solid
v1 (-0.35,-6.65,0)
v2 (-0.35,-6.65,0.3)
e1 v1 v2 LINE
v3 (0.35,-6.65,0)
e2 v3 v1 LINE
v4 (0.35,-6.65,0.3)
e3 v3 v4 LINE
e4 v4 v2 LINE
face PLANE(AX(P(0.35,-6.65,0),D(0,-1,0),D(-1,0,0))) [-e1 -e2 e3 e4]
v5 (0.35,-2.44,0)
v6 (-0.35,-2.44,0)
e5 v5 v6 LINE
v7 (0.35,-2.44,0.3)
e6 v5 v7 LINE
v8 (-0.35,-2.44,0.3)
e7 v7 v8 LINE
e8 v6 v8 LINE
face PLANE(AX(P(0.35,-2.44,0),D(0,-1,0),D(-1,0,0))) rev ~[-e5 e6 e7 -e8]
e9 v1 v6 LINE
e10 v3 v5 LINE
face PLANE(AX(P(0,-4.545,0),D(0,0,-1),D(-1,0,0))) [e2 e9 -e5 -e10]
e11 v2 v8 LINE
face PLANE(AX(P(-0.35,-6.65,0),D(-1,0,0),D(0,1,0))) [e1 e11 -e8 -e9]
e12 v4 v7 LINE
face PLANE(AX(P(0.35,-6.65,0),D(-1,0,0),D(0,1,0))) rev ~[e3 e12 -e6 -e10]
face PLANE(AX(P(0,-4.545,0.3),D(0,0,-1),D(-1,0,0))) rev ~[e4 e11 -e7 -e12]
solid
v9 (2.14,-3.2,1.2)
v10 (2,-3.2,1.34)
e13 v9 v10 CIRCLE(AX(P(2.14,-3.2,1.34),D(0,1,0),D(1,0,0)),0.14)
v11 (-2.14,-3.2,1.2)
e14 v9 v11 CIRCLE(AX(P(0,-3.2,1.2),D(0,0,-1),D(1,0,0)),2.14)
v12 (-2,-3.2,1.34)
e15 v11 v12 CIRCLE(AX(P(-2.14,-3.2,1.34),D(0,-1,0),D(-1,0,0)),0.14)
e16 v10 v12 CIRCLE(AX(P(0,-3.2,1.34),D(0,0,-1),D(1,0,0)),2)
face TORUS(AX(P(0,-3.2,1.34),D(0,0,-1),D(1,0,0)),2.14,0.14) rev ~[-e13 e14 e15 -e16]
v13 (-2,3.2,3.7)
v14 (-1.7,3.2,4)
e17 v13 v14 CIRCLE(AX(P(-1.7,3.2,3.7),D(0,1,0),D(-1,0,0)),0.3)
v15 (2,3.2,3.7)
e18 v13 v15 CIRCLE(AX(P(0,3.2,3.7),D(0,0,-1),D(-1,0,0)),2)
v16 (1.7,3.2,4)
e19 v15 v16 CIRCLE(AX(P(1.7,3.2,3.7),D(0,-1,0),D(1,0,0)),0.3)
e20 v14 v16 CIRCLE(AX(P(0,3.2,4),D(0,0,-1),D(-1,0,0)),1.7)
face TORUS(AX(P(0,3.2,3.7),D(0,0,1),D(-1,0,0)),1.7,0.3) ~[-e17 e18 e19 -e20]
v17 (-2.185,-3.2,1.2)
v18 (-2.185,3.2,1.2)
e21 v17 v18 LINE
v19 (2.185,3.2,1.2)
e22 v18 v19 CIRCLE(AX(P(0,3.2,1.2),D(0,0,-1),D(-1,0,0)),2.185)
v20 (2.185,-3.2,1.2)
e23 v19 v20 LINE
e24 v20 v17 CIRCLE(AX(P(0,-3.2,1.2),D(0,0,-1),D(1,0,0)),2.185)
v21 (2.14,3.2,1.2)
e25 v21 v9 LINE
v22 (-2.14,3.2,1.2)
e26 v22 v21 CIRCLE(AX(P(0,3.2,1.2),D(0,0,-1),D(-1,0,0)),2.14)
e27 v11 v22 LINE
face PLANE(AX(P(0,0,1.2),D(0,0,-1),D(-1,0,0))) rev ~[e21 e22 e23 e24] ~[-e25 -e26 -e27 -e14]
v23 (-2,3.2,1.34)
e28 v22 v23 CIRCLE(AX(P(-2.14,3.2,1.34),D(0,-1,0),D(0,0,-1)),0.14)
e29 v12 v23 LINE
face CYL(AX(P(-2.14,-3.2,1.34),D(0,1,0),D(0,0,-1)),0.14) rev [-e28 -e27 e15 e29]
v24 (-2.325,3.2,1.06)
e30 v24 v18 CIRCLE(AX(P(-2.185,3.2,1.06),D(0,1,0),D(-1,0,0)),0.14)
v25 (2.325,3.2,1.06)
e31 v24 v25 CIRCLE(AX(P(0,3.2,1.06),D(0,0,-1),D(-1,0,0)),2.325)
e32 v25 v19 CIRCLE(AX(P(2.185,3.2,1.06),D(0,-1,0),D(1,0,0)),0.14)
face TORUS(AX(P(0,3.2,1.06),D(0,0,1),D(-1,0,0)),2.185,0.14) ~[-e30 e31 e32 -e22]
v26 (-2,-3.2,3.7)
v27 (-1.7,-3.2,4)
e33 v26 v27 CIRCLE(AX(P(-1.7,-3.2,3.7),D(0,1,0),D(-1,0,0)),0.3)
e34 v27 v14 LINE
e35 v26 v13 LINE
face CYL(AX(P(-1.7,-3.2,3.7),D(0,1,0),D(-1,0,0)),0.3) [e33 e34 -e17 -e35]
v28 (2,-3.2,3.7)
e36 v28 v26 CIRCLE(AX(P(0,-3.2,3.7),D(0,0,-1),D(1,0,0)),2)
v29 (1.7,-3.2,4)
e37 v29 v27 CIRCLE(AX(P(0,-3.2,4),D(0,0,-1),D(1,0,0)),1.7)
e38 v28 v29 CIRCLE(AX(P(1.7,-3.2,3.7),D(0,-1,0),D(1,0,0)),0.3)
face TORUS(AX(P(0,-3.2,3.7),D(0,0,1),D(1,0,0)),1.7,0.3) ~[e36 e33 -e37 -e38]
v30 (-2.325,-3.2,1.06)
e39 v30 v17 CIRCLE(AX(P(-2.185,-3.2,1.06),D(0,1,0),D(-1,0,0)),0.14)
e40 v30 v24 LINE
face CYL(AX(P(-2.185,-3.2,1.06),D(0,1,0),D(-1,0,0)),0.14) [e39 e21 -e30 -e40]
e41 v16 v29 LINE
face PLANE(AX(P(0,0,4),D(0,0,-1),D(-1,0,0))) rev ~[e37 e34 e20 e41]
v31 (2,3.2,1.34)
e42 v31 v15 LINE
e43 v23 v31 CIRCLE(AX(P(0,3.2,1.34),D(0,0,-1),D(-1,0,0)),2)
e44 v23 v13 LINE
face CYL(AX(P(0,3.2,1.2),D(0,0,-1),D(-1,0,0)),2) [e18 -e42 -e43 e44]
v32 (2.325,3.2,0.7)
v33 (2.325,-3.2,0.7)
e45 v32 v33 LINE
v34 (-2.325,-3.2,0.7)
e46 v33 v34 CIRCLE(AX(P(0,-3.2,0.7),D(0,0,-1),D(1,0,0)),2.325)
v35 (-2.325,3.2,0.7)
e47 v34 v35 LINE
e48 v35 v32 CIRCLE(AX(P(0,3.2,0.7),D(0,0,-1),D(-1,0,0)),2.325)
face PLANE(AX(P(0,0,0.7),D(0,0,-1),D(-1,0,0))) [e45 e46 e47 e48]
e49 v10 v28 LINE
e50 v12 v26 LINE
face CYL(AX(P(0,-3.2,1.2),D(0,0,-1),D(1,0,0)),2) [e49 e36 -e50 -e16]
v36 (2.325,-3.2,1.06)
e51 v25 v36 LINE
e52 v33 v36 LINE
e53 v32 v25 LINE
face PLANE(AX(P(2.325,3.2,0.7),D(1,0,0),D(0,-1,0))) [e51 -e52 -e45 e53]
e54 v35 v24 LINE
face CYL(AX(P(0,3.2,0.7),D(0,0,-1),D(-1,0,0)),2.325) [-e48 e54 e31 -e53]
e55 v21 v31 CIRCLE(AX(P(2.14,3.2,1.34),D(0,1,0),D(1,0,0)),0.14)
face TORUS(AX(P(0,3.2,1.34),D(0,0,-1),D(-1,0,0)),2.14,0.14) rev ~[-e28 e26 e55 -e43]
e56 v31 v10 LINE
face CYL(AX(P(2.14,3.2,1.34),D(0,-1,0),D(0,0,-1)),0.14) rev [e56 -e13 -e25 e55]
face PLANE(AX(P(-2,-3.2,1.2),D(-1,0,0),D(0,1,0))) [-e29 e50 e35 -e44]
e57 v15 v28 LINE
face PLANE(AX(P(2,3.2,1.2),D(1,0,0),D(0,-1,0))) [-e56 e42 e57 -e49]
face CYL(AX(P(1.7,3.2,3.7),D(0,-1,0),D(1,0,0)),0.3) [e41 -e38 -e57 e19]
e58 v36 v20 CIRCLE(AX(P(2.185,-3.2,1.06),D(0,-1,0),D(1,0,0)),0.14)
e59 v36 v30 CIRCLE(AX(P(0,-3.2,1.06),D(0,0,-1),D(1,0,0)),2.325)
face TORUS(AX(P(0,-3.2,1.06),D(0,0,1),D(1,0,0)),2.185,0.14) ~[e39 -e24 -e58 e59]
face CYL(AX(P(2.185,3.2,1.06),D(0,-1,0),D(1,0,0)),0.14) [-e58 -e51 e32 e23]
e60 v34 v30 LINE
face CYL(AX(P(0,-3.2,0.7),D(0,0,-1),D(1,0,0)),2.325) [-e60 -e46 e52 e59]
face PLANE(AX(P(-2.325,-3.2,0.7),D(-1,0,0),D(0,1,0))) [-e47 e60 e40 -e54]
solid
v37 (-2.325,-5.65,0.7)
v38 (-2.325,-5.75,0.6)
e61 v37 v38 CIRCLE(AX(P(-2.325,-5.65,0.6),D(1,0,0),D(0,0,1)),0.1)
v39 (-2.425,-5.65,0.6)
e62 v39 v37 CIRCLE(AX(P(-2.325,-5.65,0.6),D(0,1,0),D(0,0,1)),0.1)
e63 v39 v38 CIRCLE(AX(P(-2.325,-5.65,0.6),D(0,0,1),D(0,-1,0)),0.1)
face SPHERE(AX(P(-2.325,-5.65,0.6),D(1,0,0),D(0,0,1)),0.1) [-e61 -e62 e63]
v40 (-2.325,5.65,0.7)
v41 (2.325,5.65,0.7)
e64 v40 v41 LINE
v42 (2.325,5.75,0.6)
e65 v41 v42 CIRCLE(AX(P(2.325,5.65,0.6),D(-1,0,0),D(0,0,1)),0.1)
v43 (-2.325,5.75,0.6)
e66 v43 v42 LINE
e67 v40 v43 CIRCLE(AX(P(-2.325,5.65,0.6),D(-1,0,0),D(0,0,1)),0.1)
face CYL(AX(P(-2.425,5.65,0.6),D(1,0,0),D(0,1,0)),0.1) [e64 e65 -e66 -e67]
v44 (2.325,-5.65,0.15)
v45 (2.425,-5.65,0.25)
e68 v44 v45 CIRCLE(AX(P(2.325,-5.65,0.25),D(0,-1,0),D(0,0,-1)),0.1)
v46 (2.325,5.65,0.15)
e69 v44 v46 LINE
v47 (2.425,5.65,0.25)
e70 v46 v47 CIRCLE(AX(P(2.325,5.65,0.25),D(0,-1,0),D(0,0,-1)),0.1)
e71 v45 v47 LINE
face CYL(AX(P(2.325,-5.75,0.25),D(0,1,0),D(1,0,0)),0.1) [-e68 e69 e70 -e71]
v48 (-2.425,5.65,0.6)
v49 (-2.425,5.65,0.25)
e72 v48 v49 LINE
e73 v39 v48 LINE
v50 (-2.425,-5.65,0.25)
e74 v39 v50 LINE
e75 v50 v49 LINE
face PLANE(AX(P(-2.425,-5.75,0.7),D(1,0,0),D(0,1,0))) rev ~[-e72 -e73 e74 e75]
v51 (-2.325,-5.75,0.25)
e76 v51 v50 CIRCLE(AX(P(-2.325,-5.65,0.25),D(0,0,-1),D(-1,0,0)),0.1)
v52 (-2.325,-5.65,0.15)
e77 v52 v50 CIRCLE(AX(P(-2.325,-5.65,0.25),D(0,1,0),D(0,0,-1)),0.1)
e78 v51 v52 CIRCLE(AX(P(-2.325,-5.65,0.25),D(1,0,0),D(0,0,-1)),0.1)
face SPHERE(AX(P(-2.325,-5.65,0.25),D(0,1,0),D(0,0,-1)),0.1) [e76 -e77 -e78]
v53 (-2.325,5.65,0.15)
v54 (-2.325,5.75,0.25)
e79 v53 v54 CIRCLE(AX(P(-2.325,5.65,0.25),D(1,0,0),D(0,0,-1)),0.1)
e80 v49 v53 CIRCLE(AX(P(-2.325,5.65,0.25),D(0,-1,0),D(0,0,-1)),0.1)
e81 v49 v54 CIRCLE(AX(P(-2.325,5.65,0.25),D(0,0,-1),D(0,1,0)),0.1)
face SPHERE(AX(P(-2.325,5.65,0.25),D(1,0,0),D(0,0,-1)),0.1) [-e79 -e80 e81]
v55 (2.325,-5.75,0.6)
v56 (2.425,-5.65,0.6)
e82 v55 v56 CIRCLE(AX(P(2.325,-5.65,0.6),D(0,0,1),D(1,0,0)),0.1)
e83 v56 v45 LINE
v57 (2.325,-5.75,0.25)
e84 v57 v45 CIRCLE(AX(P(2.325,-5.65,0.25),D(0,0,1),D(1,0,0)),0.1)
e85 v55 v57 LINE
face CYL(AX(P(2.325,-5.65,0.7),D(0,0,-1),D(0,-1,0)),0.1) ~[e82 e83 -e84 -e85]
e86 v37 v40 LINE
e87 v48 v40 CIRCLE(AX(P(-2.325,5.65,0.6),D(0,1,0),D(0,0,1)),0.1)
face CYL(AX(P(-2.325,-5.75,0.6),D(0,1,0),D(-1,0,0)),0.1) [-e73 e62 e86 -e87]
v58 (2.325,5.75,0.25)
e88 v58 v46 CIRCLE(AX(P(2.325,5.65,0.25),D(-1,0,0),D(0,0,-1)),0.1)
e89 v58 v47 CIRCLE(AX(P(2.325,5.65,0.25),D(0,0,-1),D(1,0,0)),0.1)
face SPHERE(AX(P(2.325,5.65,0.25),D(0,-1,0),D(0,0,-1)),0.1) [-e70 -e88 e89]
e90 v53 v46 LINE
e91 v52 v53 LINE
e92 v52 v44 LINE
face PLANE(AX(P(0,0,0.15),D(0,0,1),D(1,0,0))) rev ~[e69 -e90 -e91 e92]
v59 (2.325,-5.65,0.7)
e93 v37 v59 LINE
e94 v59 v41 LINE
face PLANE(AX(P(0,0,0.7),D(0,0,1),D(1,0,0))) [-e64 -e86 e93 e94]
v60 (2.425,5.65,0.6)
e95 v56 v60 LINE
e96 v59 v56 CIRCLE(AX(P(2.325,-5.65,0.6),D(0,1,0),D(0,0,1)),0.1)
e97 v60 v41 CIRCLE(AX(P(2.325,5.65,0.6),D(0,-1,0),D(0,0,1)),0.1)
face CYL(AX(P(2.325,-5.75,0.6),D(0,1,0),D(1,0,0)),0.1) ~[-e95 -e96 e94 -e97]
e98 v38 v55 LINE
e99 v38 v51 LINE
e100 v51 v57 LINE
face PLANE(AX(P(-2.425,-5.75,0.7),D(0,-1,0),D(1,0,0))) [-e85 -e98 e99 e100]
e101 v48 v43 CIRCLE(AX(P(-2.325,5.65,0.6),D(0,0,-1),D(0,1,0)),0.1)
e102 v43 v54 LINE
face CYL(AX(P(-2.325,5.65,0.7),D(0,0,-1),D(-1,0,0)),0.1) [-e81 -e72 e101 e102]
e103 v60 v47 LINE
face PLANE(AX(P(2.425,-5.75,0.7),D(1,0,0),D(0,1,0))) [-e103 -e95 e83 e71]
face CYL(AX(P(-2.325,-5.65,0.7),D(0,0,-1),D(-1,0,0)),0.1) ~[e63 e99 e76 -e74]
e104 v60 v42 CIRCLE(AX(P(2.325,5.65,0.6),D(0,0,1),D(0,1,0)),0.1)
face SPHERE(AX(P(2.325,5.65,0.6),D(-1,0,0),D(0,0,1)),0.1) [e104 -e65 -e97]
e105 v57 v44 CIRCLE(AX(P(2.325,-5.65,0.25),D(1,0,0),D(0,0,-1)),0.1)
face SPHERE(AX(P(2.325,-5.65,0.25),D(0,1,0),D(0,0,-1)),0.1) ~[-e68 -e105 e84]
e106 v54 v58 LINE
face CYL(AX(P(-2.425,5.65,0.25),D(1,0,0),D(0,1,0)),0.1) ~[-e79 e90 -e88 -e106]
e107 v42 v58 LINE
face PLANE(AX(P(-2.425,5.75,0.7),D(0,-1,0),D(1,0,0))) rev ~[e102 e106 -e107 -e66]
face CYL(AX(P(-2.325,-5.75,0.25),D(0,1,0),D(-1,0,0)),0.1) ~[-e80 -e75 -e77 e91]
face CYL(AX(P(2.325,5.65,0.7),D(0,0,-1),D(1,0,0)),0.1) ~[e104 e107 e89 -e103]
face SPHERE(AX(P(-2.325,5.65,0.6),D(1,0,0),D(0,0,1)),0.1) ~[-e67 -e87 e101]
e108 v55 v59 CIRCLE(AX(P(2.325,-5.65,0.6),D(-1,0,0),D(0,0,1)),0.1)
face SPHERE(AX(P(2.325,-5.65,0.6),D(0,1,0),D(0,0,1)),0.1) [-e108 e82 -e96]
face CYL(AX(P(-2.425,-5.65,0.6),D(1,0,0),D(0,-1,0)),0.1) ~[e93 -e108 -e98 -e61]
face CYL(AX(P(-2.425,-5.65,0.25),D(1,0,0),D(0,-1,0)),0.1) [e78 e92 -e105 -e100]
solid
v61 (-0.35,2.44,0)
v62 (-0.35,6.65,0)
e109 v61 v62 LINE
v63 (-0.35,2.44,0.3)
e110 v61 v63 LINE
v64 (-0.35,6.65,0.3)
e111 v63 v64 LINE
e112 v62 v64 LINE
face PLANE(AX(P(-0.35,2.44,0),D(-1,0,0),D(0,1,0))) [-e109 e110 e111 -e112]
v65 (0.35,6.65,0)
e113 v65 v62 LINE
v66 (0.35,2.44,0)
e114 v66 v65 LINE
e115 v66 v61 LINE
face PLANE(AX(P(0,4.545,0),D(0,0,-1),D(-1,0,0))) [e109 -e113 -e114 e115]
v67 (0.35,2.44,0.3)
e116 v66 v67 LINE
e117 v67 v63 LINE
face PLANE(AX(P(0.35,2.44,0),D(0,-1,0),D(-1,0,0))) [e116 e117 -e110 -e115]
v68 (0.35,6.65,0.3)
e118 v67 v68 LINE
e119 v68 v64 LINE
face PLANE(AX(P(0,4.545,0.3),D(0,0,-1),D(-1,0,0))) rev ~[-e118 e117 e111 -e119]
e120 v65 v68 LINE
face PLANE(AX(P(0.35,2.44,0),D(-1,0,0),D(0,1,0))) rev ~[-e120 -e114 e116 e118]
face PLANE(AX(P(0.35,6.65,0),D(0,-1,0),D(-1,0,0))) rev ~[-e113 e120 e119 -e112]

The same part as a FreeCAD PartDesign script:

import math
import FreeCAD as App
import Part
import Sketcher
from FreeCAD import Vector
Q = App.Units.Quantity


def edges_at(feature, points):
    """Names of the edges that pass closest to the given points."""
    edges = feature.Shape.Edges
    near = lambda p: min(range(len(edges)), key=lambda i: edges[i].distToShape(Part.Vertex(*p))[0])
    return sorted({f"Edge{near(p) + 1}" for p in points})

doc = App.newDocument("Part")
body = doc.addObject("PartDesign::Body", "Body")

# Sketch on XY plane
sketch1 = body.newObject("Sketcher::SketchObject", "Sketch")
sketch1.AttachmentSupport = (doc.getObject("XY_Plane"), [""])
sketch1.MapMode = "FlatFace"
sketch1.AttachmentOffset = App.Placement(Vector(0, 0, 0.7), App.Rotation())
sketch1.addGeometry([
    Part.LineSegment(Vector(2.3, -3.2, 0), Vector(2.3, 3.2, 0)),
    Part.ArcOfCircle(Part.Circle(Vector(0, 3.2, 0), Vector(0, 0, 1), 2.3), math.radians(0), math.radians(180)),
    Part.LineSegment(Vector(-2.3, 3.2, 0), Vector(-2.3, -3.2, 0)),
    Part.ArcOfCircle(Part.Circle(Vector(0, -3.2, 0), Vector(0, 0, 1), 2.3), math.radians(180), math.radians(360)),
], False)
sketch1.addConstraint([
    Sketcher.Constraint("Tangent", 0, 2, 1, 1),
    Sketcher.Constraint("Tangent", 1, 2, 2, 1),
    Sketcher.Constraint("Tangent", 2, 2, 3, 1),
    Sketcher.Constraint("Tangent", 3, 2, 0, 1),
    Sketcher.Constraint("Vertical", 0),
    Sketcher.Constraint("Vertical", 2),
    Sketcher.Constraint("Symmetric", 1, 3, 3, 3, -1, 1),
    Sketcher.Constraint("DistanceY", 0, 1, 0, 2, Q("6.4 mm")),
    Sketcher.Constraint("Radius", 1, Q("2.325 mm")),
])
pad1 = body.newObject("PartDesign::Pad", "Pad")
pad1.Profile = sketch1
pad1.Length = 0.5

# Sketch on XY plane
sketch2 = body.newObject("Sketcher::SketchObject", "Sketch001")
sketch2.AttachmentSupport = (doc.getObject("XY_Plane"), [""])
sketch2.MapMode = "FlatFace"
sketch2.AttachmentOffset = App.Placement(Vector(0, 0, 1.2), App.Rotation())
sketch2.addGeometry([
    Part.LineSegment(Vector(-2, 3.2, 0), Vector(-2, -3.2, 0)),
    Part.ArcOfCircle(Part.Circle(Vector(0, -3.2, 0), Vector(0, 0, 1), 2), math.radians(180), math.radians(360)),
    Part.LineSegment(Vector(2, -3.2, 0), Vector(2, 3.2, 0)),
    Part.ArcOfCircle(Part.Circle(Vector(0, 3.2, 0), Vector(0, 0, 1), 2), math.radians(0), math.radians(180)),
], False)
sketch2.addConstraint([
    Sketcher.Constraint("Tangent", 0, 2, 1, 1),
    Sketcher.Constraint("Tangent", 1, 2, 2, 1),
    Sketcher.Constraint("Tangent", 2, 2, 3, 1),
    Sketcher.Constraint("Tangent", 3, 2, 0, 1),
    Sketcher.Constraint("Vertical", 0),
    Sketcher.Constraint("Vertical", 2),
    Sketcher.Constraint("Symmetric", 1, 3, 3, 3, -1, 1),
    Sketcher.Constraint("Radius", 1, Q("2 mm")),
    Sketcher.Constraint("DistanceY", 0, 2, 0, 1, Q("6.4 mm")),
])
pad2 = body.newObject("PartDesign::Pad", "Pad001")
pad2.Profile = sketch2
pad2.Length = 2.8
doc.recompute()

fillet = body.newObject("PartDesign::Fillet", "Fillet")
fillet.Base = (pad2, edges_at(pad2, [
    (0, -5.525, 1.2),
    (2.325, 0, 1.2),
    (0, -5.2, 1.2),
    (2, 0, 1.2),
    (0, 5.2, 1.2),
    (-2, 0, 1.2),
    (0, 5.525, 1.2),
    (-2.325, 0, 1.2),
]))
fillet.Radius = 0.14
doc.recompute()

fillet2 = body.newObject("PartDesign::Fillet", "Fillet001")
fillet2.Base = (fillet, edges_at(fillet, [
    (0, -5.2, 4),
    (2, 0, 4),
    (0, 5.2, 4),
    (-2, 0, 4),
]))
fillet2.Radius = 0.3
body2 = doc.addObject("PartDesign::Body", "Body001")

# Sketch on XY plane
sketch3 = body2.newObject("Sketcher::SketchObject", "Sketch002")
sketch3.AttachmentSupport = (doc.getObject("XY_Plane001"), [""])
sketch3.MapMode = "FlatFace"
sketch3.AttachmentOffset = App.Placement(Vector(0, 0, 0.7), App.Rotation())
sketch3.addGeometry([
    Part.LineSegment(Vector(-2.4, 5.8, 0), Vector(-2.4, -5.8, 0)),
    Part.LineSegment(Vector(-2.4, -5.8, 0), Vector(2.4, -5.8, 0)),
    Part.LineSegment(Vector(2.4, -5.8, 0), Vector(2.4, 5.8, 0)),
    Part.LineSegment(Vector(2.4, 5.8, 0), Vector(-2.4, 5.8, 0)),
], False)
sketch3.addConstraint([
    Sketcher.Constraint("Coincident", 0, 2, 1, 1),
    Sketcher.Constraint("Coincident", 1, 2, 2, 1),
    Sketcher.Constraint("Coincident", 2, 2, 3, 1),
    Sketcher.Constraint("Coincident", 3, 2, 0, 1),
    Sketcher.Constraint("Vertical", 0),
    Sketcher.Constraint("Horizontal", 1),
    Sketcher.Constraint("Vertical", 2),
    Sketcher.Constraint("Horizontal", 3),
    Sketcher.Constraint("Symmetric", 0, 2, 2, 2, -1, 1),
    Sketcher.Constraint("DistanceY", 0, 2, 0, 1, Q("11.5 mm")),
    Sketcher.Constraint("DistanceX", 1, 1, 1, 2, Q("4.85 mm")),
])
pad3 = body2.newObject("PartDesign::Pad", "Pad002")
pad3.Profile = sketch3
pad3.Length = 0.55
pad3.Reversed = True
doc.recompute()

fillet3 = body2.newObject("PartDesign::Fillet", "Fillet002")
fillet3.Base = (pad3, ["Edge1"])
fillet3.UseAllEdges = True
fillet3.Radius = 0.1
body3 = doc.addObject("PartDesign::Body", "Body002")

# Sketch on XY plane
sketch4 = body3.newObject("Sketcher::SketchObject", "Sketch003")
sketch4.AttachmentSupport = (doc.getObject("XY_Plane002"), [""])
sketch4.MapMode = "FlatFace"
sketch4.addGeometry([
    Part.LineSegment(Vector(0.3, -2.4, 0), Vector(0.3, -6.7, 0)),
    Part.LineSegment(Vector(0.3, -6.7, 0), Vector(-0.3, -6.7, 0)),
    Part.LineSegment(Vector(-0.3, -6.7, 0), Vector(-0.3, -2.4, 0)),
    Part.LineSegment(Vector(-0.3, -2.4, 0), Vector(0.3, -2.4, 0)),
], False)
sketch4.addConstraint([
    Sketcher.Constraint("Coincident", 0, 2, 1, 1),
    Sketcher.Constraint("Coincident", 1, 2, 2, 1),
    Sketcher.Constraint("Coincident", 2, 2, 3, 1),
    Sketcher.Constraint("Coincident", 3, 2, 0, 1),
    Sketcher.Constraint("Vertical", 0),
    Sketcher.Constraint("Horizontal", 1),
    Sketcher.Constraint("Vertical", 2),
    Sketcher.Constraint("Horizontal", 3),
    Sketcher.Constraint("DistanceX", 1, 2, 1, 1, Q("0.7 mm")),
    Sketcher.Constraint("DistanceY", 0, 2, 0, 1, Q("4.21 mm")),
    Sketcher.Constraint("DistanceX", -1, 1, 0, 2, Q("0.35 mm")),
    Sketcher.Constraint("DistanceY", 0, 2, -1, 1, Q("6.65 mm")),
])
pad4 = body3.newObject("PartDesign::Pad", "Pad003")
pad4.Profile = sketch4
pad4.Length = 0.3
body4 = doc.addObject("PartDesign::Body", "Body003")

# Sketch on XY plane
sketch5 = body4.newObject("Sketcher::SketchObject", "Sketch004")
sketch5.AttachmentSupport = (doc.getObject("XY_Plane003"), [""])
sketch5.MapMode = "FlatFace"
sketch5.addGeometry([
    Part.LineSegment(Vector(0.3, 6.7, 0), Vector(0.3, 2.4, 0)),
    Part.LineSegment(Vector(0.3, 2.4, 0), Vector(-0.3, 2.4, 0)),
    Part.LineSegment(Vector(-0.3, 2.4, 0), Vector(-0.3, 6.7, 0)),
    Part.LineSegment(Vector(-0.3, 6.7, 0), Vector(0.3, 6.7, 0)),
], False)
sketch5.addConstraint([
    Sketcher.Constraint("Coincident", 0, 2, 1, 1),
    Sketcher.Constraint("Coincident", 1, 2, 2, 1),
    Sketcher.Constraint("Coincident", 2, 2, 3, 1),
    Sketcher.Constraint("Coincident", 3, 2, 0, 1),
    Sketcher.Constraint("Vertical", 0),
    Sketcher.Constraint("Horizontal", 1),
    Sketcher.Constraint("Vertical", 2),
    Sketcher.Constraint("Horizontal", 3),
    Sketcher.Constraint("DistanceX", 1, 2, 1, 1, Q("0.7 mm")),
    Sketcher.Constraint("DistanceY", 0, 2, 0, 1, Q("4.21 mm")),
    Sketcher.Constraint("DistanceX", -1, 1, 0, 2, Q("0.35 mm")),
    Sketcher.Constraint("DistanceY", -1, 1, 0, 2, Q("2.44 mm")),
])
pad5 = body4.newObject("PartDesign::Pad", "Pad004")
pad5.Profile = sketch5
pad5.Length = 0.3

doc.recompute()
